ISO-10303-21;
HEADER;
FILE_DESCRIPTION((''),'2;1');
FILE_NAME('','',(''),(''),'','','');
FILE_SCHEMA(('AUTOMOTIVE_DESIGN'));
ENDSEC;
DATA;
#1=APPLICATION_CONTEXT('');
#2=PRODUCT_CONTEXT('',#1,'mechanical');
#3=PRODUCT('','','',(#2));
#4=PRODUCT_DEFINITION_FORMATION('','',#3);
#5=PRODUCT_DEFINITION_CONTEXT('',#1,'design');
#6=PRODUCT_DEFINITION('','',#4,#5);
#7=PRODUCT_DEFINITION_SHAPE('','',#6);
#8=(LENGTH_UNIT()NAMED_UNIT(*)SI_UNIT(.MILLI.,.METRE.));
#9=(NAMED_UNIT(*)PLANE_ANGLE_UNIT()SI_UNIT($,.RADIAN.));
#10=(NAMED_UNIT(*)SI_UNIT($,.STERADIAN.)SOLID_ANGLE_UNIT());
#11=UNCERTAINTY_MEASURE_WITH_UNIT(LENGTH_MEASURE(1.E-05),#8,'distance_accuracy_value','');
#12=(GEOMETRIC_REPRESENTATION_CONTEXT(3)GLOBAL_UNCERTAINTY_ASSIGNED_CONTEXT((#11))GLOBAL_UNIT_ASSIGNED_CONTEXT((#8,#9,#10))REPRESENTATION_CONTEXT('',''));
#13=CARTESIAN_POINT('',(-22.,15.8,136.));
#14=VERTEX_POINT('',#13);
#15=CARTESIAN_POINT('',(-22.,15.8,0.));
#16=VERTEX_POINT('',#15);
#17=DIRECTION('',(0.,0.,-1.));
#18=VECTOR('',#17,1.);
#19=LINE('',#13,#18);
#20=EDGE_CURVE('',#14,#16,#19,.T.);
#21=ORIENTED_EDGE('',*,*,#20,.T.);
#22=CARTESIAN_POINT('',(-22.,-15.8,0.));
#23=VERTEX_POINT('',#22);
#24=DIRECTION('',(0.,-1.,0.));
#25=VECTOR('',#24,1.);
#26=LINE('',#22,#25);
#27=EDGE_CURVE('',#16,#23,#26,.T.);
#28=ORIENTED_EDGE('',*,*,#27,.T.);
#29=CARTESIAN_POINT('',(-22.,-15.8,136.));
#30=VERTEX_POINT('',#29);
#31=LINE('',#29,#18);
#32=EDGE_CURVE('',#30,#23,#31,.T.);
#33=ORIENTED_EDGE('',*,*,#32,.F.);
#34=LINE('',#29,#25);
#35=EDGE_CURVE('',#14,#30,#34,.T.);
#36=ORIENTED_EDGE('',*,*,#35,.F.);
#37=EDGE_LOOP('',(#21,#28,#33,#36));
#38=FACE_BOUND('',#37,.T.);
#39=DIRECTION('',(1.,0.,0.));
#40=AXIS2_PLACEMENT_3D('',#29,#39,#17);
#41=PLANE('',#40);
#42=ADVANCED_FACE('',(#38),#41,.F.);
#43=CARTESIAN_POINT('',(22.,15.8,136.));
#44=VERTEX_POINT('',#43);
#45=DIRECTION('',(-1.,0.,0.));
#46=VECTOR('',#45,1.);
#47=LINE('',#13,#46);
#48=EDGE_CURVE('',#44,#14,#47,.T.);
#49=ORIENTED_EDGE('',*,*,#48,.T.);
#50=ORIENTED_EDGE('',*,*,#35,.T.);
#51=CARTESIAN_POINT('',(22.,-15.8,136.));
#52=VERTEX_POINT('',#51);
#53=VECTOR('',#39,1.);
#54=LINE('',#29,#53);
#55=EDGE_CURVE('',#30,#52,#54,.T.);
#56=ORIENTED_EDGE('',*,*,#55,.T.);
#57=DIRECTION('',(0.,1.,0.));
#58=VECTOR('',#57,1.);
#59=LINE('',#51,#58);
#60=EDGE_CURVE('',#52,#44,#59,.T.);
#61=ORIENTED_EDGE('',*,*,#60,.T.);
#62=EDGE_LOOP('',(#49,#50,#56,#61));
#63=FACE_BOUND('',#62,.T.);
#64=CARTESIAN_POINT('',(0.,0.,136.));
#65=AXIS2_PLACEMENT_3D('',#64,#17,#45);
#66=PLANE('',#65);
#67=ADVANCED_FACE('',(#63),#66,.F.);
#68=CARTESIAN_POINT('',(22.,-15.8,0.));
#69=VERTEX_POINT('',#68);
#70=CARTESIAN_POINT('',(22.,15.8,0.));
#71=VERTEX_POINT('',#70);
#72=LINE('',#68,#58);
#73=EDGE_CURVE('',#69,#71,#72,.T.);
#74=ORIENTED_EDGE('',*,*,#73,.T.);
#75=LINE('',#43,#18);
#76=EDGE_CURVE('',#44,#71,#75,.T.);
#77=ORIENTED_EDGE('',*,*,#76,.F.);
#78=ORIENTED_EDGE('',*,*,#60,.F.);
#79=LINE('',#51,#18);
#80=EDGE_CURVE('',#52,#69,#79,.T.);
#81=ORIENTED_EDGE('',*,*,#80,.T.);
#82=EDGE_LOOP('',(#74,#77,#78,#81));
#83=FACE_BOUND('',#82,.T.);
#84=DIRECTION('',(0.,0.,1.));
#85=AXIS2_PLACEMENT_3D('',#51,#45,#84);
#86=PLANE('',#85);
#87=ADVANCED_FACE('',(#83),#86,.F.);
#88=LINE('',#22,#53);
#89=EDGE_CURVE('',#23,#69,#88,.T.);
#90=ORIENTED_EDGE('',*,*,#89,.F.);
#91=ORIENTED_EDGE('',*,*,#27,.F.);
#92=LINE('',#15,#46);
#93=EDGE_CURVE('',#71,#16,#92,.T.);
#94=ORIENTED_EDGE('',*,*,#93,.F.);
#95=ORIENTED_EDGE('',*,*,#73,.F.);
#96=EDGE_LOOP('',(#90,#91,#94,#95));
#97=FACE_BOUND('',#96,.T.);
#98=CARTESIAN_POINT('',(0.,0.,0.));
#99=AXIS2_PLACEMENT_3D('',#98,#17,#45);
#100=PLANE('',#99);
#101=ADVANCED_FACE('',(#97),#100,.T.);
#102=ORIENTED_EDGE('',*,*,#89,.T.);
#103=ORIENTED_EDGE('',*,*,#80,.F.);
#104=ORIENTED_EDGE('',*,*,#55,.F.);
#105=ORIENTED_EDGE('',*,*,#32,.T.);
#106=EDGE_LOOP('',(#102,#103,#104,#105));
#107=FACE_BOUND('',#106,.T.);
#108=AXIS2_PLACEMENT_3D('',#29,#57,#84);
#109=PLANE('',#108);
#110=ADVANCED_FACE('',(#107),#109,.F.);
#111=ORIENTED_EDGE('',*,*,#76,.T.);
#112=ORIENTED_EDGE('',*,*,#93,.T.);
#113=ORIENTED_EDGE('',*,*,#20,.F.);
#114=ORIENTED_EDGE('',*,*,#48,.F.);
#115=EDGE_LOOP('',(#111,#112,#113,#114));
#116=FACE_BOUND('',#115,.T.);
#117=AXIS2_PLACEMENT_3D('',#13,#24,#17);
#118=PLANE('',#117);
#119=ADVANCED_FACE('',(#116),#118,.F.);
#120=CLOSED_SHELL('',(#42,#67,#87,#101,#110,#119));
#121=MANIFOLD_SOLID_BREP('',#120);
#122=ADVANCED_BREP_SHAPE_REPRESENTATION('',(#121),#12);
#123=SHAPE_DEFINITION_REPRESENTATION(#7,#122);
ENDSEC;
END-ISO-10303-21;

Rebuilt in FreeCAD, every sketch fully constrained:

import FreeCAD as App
import Part
import Sketcher
from FreeCAD import Vector

doc = App.newDocument("Part")
body = doc.addObject("PartDesign::Body", "Body")

sketch1 = body.newObject("Sketcher::SketchObject", "Sketch")
sketch1.AttachmentSupport = (doc.getObject("XY_Plane"), [""])
sketch1.MapMode = "FlatFace"
sketch1.addGeometry([
    Part.LineSegment(Vector(-22, 16, 0), Vector(-22, -16, 0)),
    Part.LineSegment(Vector(-22, -16, 0), Vector(22, -16, 0)),
    Part.LineSegment(Vector(22, -16, 0), Vector(22, 16, 0)),
    Part.LineSegment(Vector(22, 16, 0), Vector(-22, 16, 0)),
], False)
sketch1.addConstraint([
    Sketcher.Constraint("Coincident", 0, 2, 1, 1),
    Sketcher.Constraint("Coincident", 1, 2, 2, 1),
    Sketcher.Constraint("Coincident", 2, 2, 3, 1),
    Sketcher.Constraint("Coincident", 3, 2, 0, 1),
    Sketcher.Constraint("Vertical", 0),
    Sketcher.Constraint("Horizontal", 1),
    Sketcher.Constraint("Vertical", 2),
    Sketcher.Constraint("Horizontal", 3),
    Sketcher.Constraint("Symmetric", 0, 2, 2, 2, -1, 1),
    Sketcher.Constraint("DistanceX", 1, 1, 1, 2, 44.0),
    Sketcher.Constraint("DistanceY", 0, 2, 0, 1, 31.6),
])
pad1 = body.newObject("PartDesign::Pad", "Pad")
pad1.Profile = sketch1
pad1.Length = 136

doc.recompute()
